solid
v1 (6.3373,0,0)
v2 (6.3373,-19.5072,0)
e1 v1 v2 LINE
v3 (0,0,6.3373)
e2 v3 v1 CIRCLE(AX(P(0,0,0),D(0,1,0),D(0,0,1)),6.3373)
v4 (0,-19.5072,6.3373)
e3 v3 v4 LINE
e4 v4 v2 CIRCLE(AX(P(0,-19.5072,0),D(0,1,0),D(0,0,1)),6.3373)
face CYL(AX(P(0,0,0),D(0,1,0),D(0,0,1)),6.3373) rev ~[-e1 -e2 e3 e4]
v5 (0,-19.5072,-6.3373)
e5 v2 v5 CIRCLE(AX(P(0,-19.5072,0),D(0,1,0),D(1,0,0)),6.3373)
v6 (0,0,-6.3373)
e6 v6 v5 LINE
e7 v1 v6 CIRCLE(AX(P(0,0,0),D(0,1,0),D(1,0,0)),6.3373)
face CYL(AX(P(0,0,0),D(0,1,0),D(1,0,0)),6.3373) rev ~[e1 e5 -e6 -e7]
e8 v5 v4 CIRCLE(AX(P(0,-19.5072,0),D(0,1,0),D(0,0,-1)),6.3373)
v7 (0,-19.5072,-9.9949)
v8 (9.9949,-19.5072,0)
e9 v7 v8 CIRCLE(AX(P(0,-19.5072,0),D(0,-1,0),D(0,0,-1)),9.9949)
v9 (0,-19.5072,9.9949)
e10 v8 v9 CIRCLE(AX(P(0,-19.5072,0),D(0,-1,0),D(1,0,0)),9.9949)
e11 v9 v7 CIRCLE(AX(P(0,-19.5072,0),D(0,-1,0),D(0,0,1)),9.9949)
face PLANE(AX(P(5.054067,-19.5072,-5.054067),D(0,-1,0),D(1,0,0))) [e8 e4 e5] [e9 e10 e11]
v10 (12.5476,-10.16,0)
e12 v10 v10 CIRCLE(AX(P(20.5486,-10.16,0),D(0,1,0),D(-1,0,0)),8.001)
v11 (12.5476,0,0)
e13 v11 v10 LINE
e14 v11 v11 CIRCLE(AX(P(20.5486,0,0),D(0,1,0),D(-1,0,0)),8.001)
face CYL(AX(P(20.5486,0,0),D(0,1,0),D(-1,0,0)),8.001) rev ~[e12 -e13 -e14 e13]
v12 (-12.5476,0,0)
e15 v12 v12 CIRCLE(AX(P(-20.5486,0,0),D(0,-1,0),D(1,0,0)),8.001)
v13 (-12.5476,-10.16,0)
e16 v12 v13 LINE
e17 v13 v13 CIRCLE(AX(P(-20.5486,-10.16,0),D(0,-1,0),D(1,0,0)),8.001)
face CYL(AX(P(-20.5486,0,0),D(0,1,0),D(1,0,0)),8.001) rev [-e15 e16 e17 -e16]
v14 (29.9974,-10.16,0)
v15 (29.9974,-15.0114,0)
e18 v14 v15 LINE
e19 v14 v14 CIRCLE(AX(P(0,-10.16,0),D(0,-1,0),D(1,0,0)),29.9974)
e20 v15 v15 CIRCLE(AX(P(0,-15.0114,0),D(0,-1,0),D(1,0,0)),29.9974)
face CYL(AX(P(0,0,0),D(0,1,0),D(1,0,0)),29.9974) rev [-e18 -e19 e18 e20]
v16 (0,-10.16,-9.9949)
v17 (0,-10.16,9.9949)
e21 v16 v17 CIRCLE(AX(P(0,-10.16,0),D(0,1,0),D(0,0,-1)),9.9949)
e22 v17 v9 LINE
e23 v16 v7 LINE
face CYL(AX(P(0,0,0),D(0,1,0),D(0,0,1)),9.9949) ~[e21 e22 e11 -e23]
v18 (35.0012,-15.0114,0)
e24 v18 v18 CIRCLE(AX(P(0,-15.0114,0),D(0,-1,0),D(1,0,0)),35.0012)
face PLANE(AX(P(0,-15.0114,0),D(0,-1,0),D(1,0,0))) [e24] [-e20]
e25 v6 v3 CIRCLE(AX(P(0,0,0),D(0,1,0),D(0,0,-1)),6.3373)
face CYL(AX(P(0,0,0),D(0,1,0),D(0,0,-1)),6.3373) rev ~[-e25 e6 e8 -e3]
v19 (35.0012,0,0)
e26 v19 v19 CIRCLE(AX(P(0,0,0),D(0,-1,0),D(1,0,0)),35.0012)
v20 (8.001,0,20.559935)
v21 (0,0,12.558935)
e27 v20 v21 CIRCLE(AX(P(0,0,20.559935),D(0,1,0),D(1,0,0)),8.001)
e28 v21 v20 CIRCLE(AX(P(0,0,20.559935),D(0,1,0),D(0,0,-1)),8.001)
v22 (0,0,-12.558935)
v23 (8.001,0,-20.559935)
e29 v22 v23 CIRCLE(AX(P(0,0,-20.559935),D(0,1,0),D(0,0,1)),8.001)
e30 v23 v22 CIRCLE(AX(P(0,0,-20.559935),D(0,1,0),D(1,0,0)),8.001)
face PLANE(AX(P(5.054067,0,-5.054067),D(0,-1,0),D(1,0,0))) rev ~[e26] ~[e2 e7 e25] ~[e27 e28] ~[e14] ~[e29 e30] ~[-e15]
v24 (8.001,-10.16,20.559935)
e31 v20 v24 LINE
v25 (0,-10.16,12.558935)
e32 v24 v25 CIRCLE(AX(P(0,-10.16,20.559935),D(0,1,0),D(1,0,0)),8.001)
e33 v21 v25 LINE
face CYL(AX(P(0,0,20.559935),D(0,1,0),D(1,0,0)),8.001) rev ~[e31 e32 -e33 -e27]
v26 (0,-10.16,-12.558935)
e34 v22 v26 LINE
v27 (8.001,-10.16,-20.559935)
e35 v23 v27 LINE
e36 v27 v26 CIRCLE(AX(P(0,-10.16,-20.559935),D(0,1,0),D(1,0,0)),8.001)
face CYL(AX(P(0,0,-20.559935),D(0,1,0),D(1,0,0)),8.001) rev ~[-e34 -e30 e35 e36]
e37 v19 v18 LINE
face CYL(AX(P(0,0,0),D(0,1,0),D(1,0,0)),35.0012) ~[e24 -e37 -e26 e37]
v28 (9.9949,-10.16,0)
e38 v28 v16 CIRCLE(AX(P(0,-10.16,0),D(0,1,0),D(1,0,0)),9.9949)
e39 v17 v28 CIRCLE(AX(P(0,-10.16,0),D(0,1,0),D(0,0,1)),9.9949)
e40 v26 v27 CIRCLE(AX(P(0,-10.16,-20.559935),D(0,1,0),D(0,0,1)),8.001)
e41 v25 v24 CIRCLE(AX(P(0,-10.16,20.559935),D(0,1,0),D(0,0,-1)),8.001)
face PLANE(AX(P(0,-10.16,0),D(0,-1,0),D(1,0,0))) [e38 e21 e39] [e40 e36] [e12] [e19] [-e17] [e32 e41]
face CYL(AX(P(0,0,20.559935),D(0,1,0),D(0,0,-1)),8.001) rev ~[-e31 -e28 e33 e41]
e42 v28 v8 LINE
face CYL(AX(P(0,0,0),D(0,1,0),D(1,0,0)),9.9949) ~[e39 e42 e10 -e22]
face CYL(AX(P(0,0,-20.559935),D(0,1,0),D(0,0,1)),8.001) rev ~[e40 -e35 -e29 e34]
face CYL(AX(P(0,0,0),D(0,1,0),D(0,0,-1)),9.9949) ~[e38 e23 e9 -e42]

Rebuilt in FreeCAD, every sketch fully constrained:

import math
import FreeCAD as App
import Part
import Sketcher

V = App.Vector
Q = App.Units.Quantity

doc = App.newDocument("Part")
body = doc.addObject("PartDesign::Body", "Body")

sketch1 = body.newObject("Sketcher::SketchObject", "Sketch")
sketch1.AttachmentSupport = (doc.getObject("XZ_Plane"), [""])
sketch1.MapMode = "FlatFace"
sketch1.addGeometry(Part.Circle(V(0, 0, 0), V(0, 0, 1), 29.9974), False)
sketch1.addGeometry(Part.ArcOfCircle(Part.Circle(V(0, -20.559935, 0), V(0, 0, 1), 8.001), math.radians(0), math.radians(90)), False)
sketch1.addGeometry(Part.ArcOfCircle(Part.Circle(V(0, -20.559935, 0), V(0, 0, 1), 8.001), math.radians(90), math.radians(360)), False)
sketch1.addGeometry(Part.Circle(V(-20.5486, 0, 0), V(0, 0, 1), 8.001), False)
sketch1.addGeometry(Part.ArcOfCircle(Part.Circle(V(0, 0, 0), V(0, 0, 1), 9.9949), math.radians(90), math.radians(270)), False)
sketch1.addGeometry(Part.ArcOfCircle(Part.Circle(V(0, 0, 0), V(0, 0, 1), 9.9949), math.radians(0), math.radians(90)), False)
sketch1.addGeometry(Part.ArcOfCircle(Part.Circle(V(0, 0, 0), V(0, 0, 1), 9.9949), math.radians(-90), math.radians(0)), False)
sketch1.addGeometry(Part.Circle(V(20.5486, 0, 0), V(0, 0, 1), 8.001), False)
sketch1.addGeometry(Part.ArcOfCircle(Part.Circle(V(0, 20.559935, 0), V(0, 0, 1), 8.001), math.radians(0), math.radians(270)), False)
sketch1.addGeometry(Part.ArcOfCircle(Part.Circle(V(0, 20.559935, 0), V(0, 0, 1), 8.001), math.radians(-90), math.radians(0)), False)
sketch1.addConstraint(Sketcher.Constraint("Tangent", 1, 1, 2, 2))
sketch1.addConstraint(Sketcher.Constraint("Coincident", 2, 1, 1, 2))
sketch1.addConstraint(Sketcher.Constraint("Tangent", 4, 1, 5, 2))
sketch1.addConstraint(Sketcher.Constraint("Tangent", 5, 1, 6, 2))
sketch1.addConstraint(Sketcher.Constraint("Tangent", 6, 1, 4, 2))
sketch1.addConstraint(Sketcher.Constraint("Tangent", 8, 1, 9, 2))
sketch1.addConstraint(Sketcher.Constraint("Coincident", 9, 1, 8, 2))
sketch1.addConstraint(Sketcher.Constraint("Coincident", 0, 3, -1, 1))
sketch1.addConstraint(Sketcher.Constraint("Coincident", 4, 3, -1, 1))
sketch1.addConstraint(Sketcher.Constraint("Equal", 2, 3))
sketch1.addConstraint(Sketcher.Constraint("Equal", 3, 7))
sketch1.addConstraint(Sketcher.Constraint("Equal", 7, 8))
sketch1.addConstraint(Sketcher.Constraint("Symmetric", 3, 3, 7, 3, -1, 1))
sketch1.addConstraint(Sketcher.Constraint("Symmetric", 1, 3, 8, 3, -1, 1))
sketch1.addConstraint(Sketcher.Constraint("Symmetric", 1, 1, 8, 1, -1))
sketch1.addConstraint(Sketcher.Constraint("PointOnObject", 3, 3, -1))
sketch1.addConstraint(Sketcher.Constraint("PointOnObject", 2, 1, -2))
sketch1.addConstraint(Sketcher.Constraint("PointOnObject", 4, 1, -2))
sketch1.addConstraint(Sketcher.Constraint("PointOnObject", 5, 1, -1))
sketch1.addConstraint(Sketcher.Constraint("PointOnObject", 6, 1, -2))
sketch1.addConstraint(Sketcher.Constraint("PointOnObject", 9, 1, -2))
sketch1.addConstraint(Sketcher.Constraint("Horizontal", 2, 3, 1, 1))
sketch1.addConstraint(Sketcher.Constraint("Diameter", 3, Q("0.63 in")))
sketch1.addConstraint(Sketcher.Constraint("Diameter", 0, Q("2.362 in")))
sketch1.addConstraint(Sketcher.Constraint("Radius", 4, Q("0.3935 in")))
sketch1.addConstraint(Sketcher.Constraint("DistanceX", 3, 3, -1, 1, Q("0.809 in")))
sketch1.addConstraint(Sketcher.Constraint("DistanceY", 1, 3, -1, 1, 20.559935))
pad1 = body.newObject("PartDesign::Pad", "Pad")
pad1.Profile = sketch1
pad1.Length = Q("0.4 in")

sketch2 = body.newObject("Sketcher::SketchObject", "Sketch001")
sketch2.AttachmentSupport = (doc.getObject("XZ_Plane"), [""])
sketch2.MapMode = "FlatFace"
sketch2.addGeometry(Part.Circle(V(0, 0, 0), V(0, 0, 1), 35.0012), False)
sketch2.addGeometry(Part.Circle(V(0, 0, 0), V(0, 0, 1), 29.9974), False)
sketch2.addConstraint(Sketcher.Constraint("Coincident", 0, 3, -1, 1))
sketch2.addConstraint(Sketcher.Constraint("Coincident", 1, 3, -1, 1))
sketch2.addConstraint(Sketcher.Constraint("Diameter", 0, Q("2.756 in")))
sketch2.addConstraint(Sketcher.Constraint("Diameter", 1, Q("2.362 in")))
pad2 = body.newObject("PartDesign::Pad", "Pad001")
pad2.Profile = sketch2
pad2.Length = Q("0.591 in")

sketch3 = body.newObject("Sketcher::SketchObject", "Sketch002")
sketch3.AttachmentSupport = (doc.getObject("XZ_Plane"), [""])
sketch3.MapMode = "FlatFace"
sketch3.addGeometry(Part.ArcOfCircle(Part.Circle(V(0, 0, 0), V(0, 0, 1), 9.9949), math.radians(-90), math.radians(0)), False)
sketch3.addGeometry(Part.ArcOfCircle(Part.Circle(V(0, 0, 0), V(0, 0, 1), 9.9949), math.radians(0), math.radians(90)), False)
sketch3.addGeometry(Part.ArcOfCircle(Part.Circle(V(0, 0, 0), V(0, 0, 1), 9.9949), math.radians(90), math.radians(270)), False)
sketch3.addGeometry(Part.ArcOfCircle(Part.Circle(V(0, 0, 0), V(0, 0, 1), 6.3373), math.radians(-90), math.radians(0)), False)
sketch3.addGeometry(Part.ArcOfCircle(Part.Circle(V(0, 0, 0), V(0, 0, 1), 6.3373), math.radians(90), math.radians(270)), False)
sketch3.addGeometry(Part.ArcOfCircle(Part.Circle(V(0, 0, 0), V(0, 0, 1), 6.3373), math.radians(0), math.radians(90)), False)
sketch3.addConstraint(Sketcher.Constraint("Tangent", 0, 2, 1, 1))
sketch3.addConstraint(Sketcher.Constraint("Tangent", 1, 2, 2, 1))
sketch3.addConstraint(Sketcher.Constraint("Tangent", 2, 2, 0, 1))
sketch3.addConstraint(Sketcher.Constraint("Tangent", 3, 1, 4, 2))
sketch3.addConstraint(Sketcher.Constraint("Tangent", 4, 1, 5, 2))
sketch3.addConstraint(Sketcher.Constraint("Tangent", 5, 1, 3, 2))
sketch3.addConstraint(Sketcher.Constraint("Coincident", 0, 3, -1, 1))
sketch3.addConstraint(Sketcher.Constraint("Coincident", 3, 3, -1, 1))
sketch3.addConstraint(Sketcher.Constraint("PointOnObject", 0, 2, -1))
sketch3.addConstraint(Sketcher.Constraint("PointOnObject", 1, 2, -2))
sketch3.addConstraint(Sketcher.Constraint("PointOnObject", 2, 2, -2))
sketch3.addConstraint(Sketcher.Constraint("PointOnObject", 3, 1, -2))
sketch3.addConstraint(Sketcher.Constraint("PointOnObject", 4, 1, -2))
sketch3.addConstraint(Sketcher.Constraint("PointOnObject", 5, 1, -1))
sketch3.addConstraint(Sketcher.Constraint("Radius", 0, Q("0.3935 in")))
sketch3.addConstraint(Sketcher.Constraint("Radius", 3, Q("0.2495 in")))
pad3 = body.newObject("PartDesign::Pad", "Pad002")
pad3.Profile = sketch3
pad3.Length = Q("0.768 in")

doc.recompute()
